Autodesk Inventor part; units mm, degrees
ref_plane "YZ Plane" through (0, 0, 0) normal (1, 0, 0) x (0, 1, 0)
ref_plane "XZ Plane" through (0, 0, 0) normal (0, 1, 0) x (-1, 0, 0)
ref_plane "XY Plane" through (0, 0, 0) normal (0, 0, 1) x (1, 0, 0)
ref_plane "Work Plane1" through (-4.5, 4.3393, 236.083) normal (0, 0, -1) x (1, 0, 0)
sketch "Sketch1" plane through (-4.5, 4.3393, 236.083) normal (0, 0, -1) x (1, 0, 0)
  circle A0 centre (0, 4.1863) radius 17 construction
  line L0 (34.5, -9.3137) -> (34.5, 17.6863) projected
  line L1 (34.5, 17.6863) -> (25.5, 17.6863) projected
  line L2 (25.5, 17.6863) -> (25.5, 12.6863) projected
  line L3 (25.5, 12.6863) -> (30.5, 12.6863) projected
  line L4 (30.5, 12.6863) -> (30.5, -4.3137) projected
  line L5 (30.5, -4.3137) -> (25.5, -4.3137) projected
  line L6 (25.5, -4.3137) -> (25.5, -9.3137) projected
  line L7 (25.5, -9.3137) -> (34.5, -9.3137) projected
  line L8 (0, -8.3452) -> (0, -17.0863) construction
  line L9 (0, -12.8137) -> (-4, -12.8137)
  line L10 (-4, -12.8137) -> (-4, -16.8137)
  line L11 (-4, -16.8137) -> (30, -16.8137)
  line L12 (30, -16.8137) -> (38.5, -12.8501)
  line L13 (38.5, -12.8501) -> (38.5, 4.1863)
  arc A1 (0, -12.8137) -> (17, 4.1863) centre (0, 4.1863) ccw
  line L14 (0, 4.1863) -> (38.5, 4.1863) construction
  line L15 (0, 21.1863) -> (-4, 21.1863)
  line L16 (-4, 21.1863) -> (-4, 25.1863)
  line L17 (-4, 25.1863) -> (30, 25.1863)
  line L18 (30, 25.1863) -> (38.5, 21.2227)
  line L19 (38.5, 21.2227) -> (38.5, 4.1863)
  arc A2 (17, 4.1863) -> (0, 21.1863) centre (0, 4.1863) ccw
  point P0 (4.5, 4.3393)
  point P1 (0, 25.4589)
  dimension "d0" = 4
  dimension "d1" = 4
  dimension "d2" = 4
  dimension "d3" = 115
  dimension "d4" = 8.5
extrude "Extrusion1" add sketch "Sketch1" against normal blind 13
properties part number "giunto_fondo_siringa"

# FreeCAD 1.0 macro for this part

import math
import FreeCAD as App
import Part
import Sketcher
Q = App.Units.Quantity

doc = App.newDocument("Part")
body = doc.addObject("PartDesign::Body", "Body")

sketch1 = body.newObject("Sketcher::SketchObject", "Sketch")
sketch1.AttachmentSupport = (doc.getObject("XY_Plane"), [""])
sketch1.MapMode = "FlatFace"
sketch1.AttachmentOffset = App.Placement(App.Vector(0, 0, 236.083), App.Rotation())
sketch1.addGeometry([
    Part.ArcOfCircle(Part.Circle(App.Vector(-4.5, 0.2, 0), App.Vector(0, 0, 1), 17), math.radians(-90), math.radians(90)),
    Part.LineSegment(App.Vector(-4.5, 17.2, 0), App.Vector(-8.5, 17.2, 0)),
    Part.LineSegment(App.Vector(-8.5, 17.2, 0), App.Vector(-8.5, 21.2, 0)),
    Part.LineSegment(App.Vector(-8.5, 21.2, 0), App.Vector(25.5, 21.2, 0)),
    Part.LineSegment(App.Vector(25.5, 21.2, 0), App.Vector(34, 17.2, 0)),
    Part.LineSegment(App.Vector(34, 17.2, 0), App.Vector(34, -16.9, 0)),
    Part.LineSegment(App.Vector(34, -16.9, 0), App.Vector(25.5, -20.8, 0)),
    Part.LineSegment(App.Vector(25.5, -20.8, 0), App.Vector(-8.5, -20.8, 0)),
    Part.LineSegment(App.Vector(-8.5, -20.8, 0), App.Vector(-8.5, -16.8, 0)),
    Part.LineSegment(App.Vector(-8.5, -16.8, 0), App.Vector(-4.5, -16.8, 0)),
    Part.LineSegment(App.Vector(30, -13.3, 0), App.Vector(30, 13.7, 0)),
    Part.LineSegment(App.Vector(30, 13.7, 0), App.Vector(21, 13.7, 0)),
    Part.LineSegment(App.Vector(21, 13.7, 0), App.Vector(21, 8.7, 0)),
    Part.LineSegment(App.Vector(21, 8.7, 0), App.Vector(26, 8.7, 0)),
    Part.LineSegment(App.Vector(26, 8.7, 0), App.Vector(26, -8.3, 0)),
    Part.LineSegment(App.Vector(26, -8.3, 0), App.Vector(21, -8.3, 0)),
    Part.LineSegment(App.Vector(21, -8.3, 0), App.Vector(21, -13.3, 0)),
    Part.LineSegment(App.Vector(21, -13.3, 0), App.Vector(30, -13.3, 0)),
], False)
sketch1.addConstraint([
    Sketcher.Constraint("Tangent", 0, 2, 1, 1),
    Sketcher.Constraint("Coincident", 1, 2, 2, 1),
    Sketcher.Constraint("Coincident", 2, 2, 3, 1),
    Sketcher.Constraint("Coincident", 3, 2, 4, 1),
    Sketcher.Constraint("Coincident", 4, 2, 5, 1),
    Sketcher.Constraint("Coincident", 5, 2, 6, 1),
    Sketcher.Constraint("Coincident", 6, 2, 7, 1),
    Sketcher.Constraint("Coincident", 7, 2, 8, 1),
    Sketcher.Constraint("Coincident", 8, 2, 9, 1),
    Sketcher.Constraint("Tangent", 9, 2, 0, 1),
    Sketcher.Constraint("Coincident", 10, 2, 11, 1),
    Sketcher.Constraint("Coincident", 11, 2, 12, 1),
    Sketcher.Constraint("Coincident", 12, 2, 13, 1),
    Sketcher.Constraint("Coincident", 13, 2, 14, 1),
    Sketcher.Constraint("Coincident", 14, 2, 15, 1),
    Sketcher.Constraint("Coincident", 15, 2, 16, 1),
    Sketcher.Constraint("Coincident", 16, 2, 17, 1),
    Sketcher.Constraint("Coincident", 17, 2, 10, 1),
    Sketcher.Constraint("Horizontal", 1),
    Sketcher.Constraint("Vertical", 2),
    Sketcher.Constraint("Horizontal", 3),
    Sketcher.Constraint("Vertical", 5),
    Sketcher.Constraint("Horizontal", 7),
    Sketcher.Constraint("Vertical", 8),
    Sketcher.Constraint("Horizontal", 9),
    Sketcher.Constraint("Vertical", 10),
    Sketcher.Constraint("Horizontal", 11),
    Sketcher.Constraint("Vertical", 12),
    Sketcher.Constraint("Horizontal", 13),
    Sketcher.Constraint("Vertical", 14),
    Sketcher.Constraint("Horizontal", 15),
    Sketcher.Constraint("Vertical", 16),
    Sketcher.Constraint("Horizontal", 17),
    Sketcher.Constraint("Vertical", 3, 2, 6, 2),
    Sketcher.Constraint("Vertical", 2, 2, 7, 2),
    Sketcher.Constraint("Vertical", 12, 2, 15, 2),
    Sketcher.Constraint("Equal", 9, 2),
    Sketcher.Constraint("Equal", 2, 8),
    Sketcher.Constraint("Equal", 15, 12),
    Sketcher.Constraint("Equal", 12, 16),
    Sketcher.Constraint("Equal", 4, 6),
    Sketcher.Constraint("DistanceX", 1, 2, 1, 1, 4.0),
    Sketcher.Constraint("Radius", 0, 17.0),
    Sketcher.Constraint("DistanceX", 10, 2, 4, 2, 4.0),
    Sketcher.Constraint("DistanceX", 13, 2, 10, 2, 4.0),
    Sketcher.Constraint("DistanceX", 1, 2, -1, 1, 8.5),
    Sketcher.Constraint("DistanceX", 3, 2, 4, 2, 8.5),
    Sketcher.Constraint("DistanceY", 0, 3, 12, 2, 8.5),
    Sketcher.Constraint("DistanceX", 3, 1, 3, 2, 34.0),
    Sketcher.Constraint("DistanceX", 11, 2, 11, 1, 9.0),
    Sketcher.Constraint("DistanceY", 10, 1, 10, 2, 27.0),
    Sketcher.Constraint("Angle", 4, Q("-25 deg")),
    Sketcher.Constraint("DistanceY", -1, 1, 0, 3, 0.153),
])
pad1 = body.newObject("PartDesign::Pad", "Pad")
pad1.Profile = sketch1
pad1.Length = 13

doc.recompute()
